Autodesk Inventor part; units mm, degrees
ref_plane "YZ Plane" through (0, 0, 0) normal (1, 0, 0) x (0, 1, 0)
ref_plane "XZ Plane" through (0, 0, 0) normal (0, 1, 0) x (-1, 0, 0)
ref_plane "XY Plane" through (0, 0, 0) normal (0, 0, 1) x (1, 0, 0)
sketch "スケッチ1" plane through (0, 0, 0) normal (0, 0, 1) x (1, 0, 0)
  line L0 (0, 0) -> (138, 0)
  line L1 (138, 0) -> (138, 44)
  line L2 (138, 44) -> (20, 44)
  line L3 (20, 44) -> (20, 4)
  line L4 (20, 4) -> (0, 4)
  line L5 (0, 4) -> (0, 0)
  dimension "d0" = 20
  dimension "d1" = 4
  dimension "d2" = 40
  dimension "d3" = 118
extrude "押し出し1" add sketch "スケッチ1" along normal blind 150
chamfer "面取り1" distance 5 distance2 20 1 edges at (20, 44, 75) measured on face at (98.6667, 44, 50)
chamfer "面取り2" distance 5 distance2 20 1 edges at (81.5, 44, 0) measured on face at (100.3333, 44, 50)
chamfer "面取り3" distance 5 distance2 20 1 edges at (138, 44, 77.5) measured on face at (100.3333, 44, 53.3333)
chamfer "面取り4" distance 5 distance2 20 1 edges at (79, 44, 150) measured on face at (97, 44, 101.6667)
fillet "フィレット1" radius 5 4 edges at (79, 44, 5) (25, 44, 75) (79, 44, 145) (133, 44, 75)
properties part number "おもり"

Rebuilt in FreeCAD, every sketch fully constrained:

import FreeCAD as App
import Part
import Sketcher

V = App.Vector


def edges_at(feature, points):
    """Names of the edges that pass closest to the given points."""
    edges = feature.Shape.Edges
    near = lambda p: min(range(len(edges)), key=lambda i: edges[i].distToShape(Part.Vertex(*p))[0])
    return sorted({f"Edge{near(p) + 1}" for p in points})


def add_polygon(sketch, points):
    """Adds a closed chain of lines whose ends are joined by coincident constraints."""
    first, n = sketch.GeometryCount, len(points)
    for a, b in zip(points, points[1:] + points[:1]):
        sketch.addGeometry(Part.LineSegment(App.Vector(*a, 0), App.Vector(*b, 0)), False)
    for i in range(n):
        sketch.addConstraint(Sketcher.Constraint("Coincident", first + i, 2, first + (i + 1) % n, 1))

doc = App.newDocument("Part")
body = doc.addObject("PartDesign::Body", "Body")

# Sketch on XY plane
sketch1 = body.newObject("Sketcher::SketchObject", "Sketch")
sketch1.AttachmentSupport = (doc.getObject("XY_Plane"), [""])
sketch1.MapMode = "FlatFace"
add_polygon(sketch1, [(0, 4), (0, 0), (138, 0), (138, 44), (20, 44), (20, 4)])  # lines 0-5
sketch1.addConstraint([
    Sketcher.Constraint("Vertical", 0),
    Sketcher.Constraint("Horizontal", 1),
    Sketcher.Constraint("Vertical", 2),
    Sketcher.Constraint("Horizontal", 3),
    Sketcher.Constraint("Vertical", 4),
    Sketcher.Constraint("Horizontal", 5),
    Sketcher.Constraint("Coincident", 0, 2, -1, 1),
    Sketcher.Constraint("DistanceX", 3, 2, 3, 1, 118.0),
    Sketcher.Constraint("DistanceX", 5, 2, 5, 1, 20.0),
    Sketcher.Constraint("DistanceY", 0, 2, 0, 1, 4.0),
    Sketcher.Constraint("DistanceY", 4, 2, 4, 1, 40.0),
])
pad1 = body.newObject("PartDesign::Pad", "Pad")
pad1.Profile = sketch1
pad1.Length = 150
doc.recompute()

chamfer = body.newObject("PartDesign::Chamfer", "Chamfer")
chamfer.Base = (pad1, edges_at(pad1, [(20, 44, 75)]))
chamfer.ChamferType = "Two distances"
chamfer.Size = 5
chamfer.Size2 = 20
doc.recompute()

chamfer2 = body.newObject("PartDesign::Chamfer", "Chamfer001")
chamfer2.Base = (chamfer, edges_at(chamfer, [(81.5, 44, 0)]))
chamfer2.ChamferType = "Two distances"
chamfer2.Size = 5
chamfer2.Size2 = 20
doc.recompute()

chamfer3 = body.newObject("PartDesign::Chamfer", "Chamfer002")
chamfer3.Base = (chamfer2, edges_at(chamfer2, [(138, 44, 77.5)]))
chamfer3.ChamferType = "Two distances"
chamfer3.Size = 5
chamfer3.Size2 = 20
doc.recompute()

chamfer4 = body.newObject("PartDesign::Chamfer", "Chamfer003")
chamfer4.Base = (chamfer3, edges_at(chamfer3, [(79, 44, 150)]))
chamfer4.ChamferType = "Two distances"
chamfer4.Size = 5
chamfer4.Size2 = 20
doc.recompute()

fillet = body.newObject("PartDesign::Fillet", "Fillet")
fillet.Base = (chamfer4, edges_at(chamfer4, [
    (79, 44, 5),
    (25, 44, 75),
    (79, 44, 145),
    (133, 44, 75),
]))
fillet.Radius = 5

doc.recompute()
